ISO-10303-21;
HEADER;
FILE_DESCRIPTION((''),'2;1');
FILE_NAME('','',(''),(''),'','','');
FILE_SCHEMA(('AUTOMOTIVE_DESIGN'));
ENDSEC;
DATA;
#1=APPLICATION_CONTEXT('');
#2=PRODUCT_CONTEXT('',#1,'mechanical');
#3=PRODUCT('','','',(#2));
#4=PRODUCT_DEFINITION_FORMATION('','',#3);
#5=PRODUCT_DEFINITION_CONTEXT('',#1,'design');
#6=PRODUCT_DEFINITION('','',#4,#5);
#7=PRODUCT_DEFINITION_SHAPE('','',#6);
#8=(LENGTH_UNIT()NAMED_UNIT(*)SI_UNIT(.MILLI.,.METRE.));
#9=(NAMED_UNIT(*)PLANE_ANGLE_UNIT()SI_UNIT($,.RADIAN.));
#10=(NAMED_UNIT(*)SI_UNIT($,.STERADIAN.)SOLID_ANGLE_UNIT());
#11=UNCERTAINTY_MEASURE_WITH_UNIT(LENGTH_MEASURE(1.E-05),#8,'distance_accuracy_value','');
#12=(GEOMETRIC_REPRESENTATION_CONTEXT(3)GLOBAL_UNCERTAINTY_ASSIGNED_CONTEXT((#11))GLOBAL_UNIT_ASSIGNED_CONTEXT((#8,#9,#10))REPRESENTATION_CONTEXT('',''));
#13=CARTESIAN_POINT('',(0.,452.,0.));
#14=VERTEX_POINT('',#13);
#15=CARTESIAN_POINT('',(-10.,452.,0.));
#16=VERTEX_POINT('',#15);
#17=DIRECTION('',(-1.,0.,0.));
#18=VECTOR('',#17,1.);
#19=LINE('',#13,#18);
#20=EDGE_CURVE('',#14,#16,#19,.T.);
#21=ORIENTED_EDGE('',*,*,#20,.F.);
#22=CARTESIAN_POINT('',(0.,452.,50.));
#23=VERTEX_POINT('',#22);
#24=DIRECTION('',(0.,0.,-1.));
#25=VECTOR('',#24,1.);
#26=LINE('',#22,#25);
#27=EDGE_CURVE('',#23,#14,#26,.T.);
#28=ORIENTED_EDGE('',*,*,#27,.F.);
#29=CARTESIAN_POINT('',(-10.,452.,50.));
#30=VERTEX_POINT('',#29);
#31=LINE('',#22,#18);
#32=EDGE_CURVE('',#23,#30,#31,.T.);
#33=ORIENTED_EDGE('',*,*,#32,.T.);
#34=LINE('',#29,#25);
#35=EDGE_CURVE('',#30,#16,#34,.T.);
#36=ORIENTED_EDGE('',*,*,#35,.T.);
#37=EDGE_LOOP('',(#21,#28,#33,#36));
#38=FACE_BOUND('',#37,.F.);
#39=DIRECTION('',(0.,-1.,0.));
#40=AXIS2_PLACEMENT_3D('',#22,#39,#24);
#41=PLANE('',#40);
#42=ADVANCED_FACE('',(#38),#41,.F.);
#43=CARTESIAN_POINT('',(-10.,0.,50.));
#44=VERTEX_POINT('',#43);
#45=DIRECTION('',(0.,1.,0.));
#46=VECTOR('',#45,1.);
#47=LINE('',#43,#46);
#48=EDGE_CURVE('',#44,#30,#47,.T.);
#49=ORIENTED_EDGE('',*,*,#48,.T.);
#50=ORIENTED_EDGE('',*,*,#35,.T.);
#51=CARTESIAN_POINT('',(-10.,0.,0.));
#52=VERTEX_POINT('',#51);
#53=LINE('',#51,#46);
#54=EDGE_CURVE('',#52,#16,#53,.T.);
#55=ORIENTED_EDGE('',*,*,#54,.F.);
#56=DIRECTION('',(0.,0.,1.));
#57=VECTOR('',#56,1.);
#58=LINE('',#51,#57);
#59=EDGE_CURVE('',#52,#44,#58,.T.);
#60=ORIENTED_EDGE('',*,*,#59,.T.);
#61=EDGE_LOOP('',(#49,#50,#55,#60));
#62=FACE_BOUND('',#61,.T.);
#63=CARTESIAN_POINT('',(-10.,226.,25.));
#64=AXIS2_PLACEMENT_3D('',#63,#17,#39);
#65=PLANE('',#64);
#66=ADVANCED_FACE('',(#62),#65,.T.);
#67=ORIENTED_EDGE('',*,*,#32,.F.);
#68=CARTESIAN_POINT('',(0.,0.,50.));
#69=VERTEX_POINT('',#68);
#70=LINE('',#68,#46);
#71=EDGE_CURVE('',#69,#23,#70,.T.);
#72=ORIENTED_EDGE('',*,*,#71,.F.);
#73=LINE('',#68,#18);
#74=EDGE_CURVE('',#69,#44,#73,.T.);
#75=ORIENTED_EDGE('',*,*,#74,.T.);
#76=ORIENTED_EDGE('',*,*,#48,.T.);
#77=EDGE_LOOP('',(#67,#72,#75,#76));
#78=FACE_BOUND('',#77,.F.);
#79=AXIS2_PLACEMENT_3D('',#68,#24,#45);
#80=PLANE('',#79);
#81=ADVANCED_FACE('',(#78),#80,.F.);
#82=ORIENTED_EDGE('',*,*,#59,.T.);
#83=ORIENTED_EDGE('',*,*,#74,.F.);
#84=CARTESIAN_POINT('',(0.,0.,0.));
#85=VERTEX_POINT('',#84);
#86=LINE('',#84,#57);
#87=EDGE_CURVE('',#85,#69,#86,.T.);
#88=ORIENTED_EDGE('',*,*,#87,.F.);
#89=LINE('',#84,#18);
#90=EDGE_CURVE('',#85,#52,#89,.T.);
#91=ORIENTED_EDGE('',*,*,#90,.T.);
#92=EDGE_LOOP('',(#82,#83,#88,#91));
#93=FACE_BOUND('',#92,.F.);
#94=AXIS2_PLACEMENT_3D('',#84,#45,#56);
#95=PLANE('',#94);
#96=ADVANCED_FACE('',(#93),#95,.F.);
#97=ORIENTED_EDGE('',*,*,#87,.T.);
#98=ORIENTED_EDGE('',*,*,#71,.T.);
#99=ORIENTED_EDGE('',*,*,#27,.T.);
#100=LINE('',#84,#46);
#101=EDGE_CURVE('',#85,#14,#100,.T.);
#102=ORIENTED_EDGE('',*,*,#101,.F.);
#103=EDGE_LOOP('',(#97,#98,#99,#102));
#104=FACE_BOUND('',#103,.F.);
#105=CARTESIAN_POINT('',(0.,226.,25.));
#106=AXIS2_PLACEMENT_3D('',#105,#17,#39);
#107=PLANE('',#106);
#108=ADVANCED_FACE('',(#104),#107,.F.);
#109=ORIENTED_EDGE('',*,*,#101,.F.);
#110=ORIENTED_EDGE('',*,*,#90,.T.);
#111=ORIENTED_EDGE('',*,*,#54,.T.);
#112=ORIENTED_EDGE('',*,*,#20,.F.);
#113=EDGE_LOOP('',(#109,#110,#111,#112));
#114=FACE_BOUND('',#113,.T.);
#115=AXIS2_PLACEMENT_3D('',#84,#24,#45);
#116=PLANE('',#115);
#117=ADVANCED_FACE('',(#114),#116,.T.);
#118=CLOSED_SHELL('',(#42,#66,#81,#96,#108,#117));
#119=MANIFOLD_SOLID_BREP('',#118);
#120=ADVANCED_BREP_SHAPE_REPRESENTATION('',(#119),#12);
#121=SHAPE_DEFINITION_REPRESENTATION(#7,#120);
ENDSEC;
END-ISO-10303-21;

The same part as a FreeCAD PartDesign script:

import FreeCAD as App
import Part
import Sketcher
from FreeCAD import Vector

doc = App.newDocument("Part")
params = doc.addObject("Spreadsheet::Sheet", "Params")
for row, (alias, value) in enumerate([
    ("sketch1_width", "452 mm"),
    ("sketch1_height", "50 mm"),
    ("pad1_length", "10 mm"),
], start=1):
    params.set(f"A{row}", alias)
    params.set(f"B{row}", "=" + value)
    params.setAlias(f"B{row}", alias)

body = doc.addObject("PartDesign::Body", "Body")

# Sketch on YZ plane
sketch1 = doc.addObject("Sketcher::SketchObject", "Sketch")
body.addObject(sketch1)
sketch1.AttachmentSupport = (doc.YZ_Plane, [""])
sketch1.MapMode = "FlatFace"
sketch1.addGeometry([
    Part.LineSegment(Vector(0, 50, 0), Vector(0, 0, 0)),
    Part.LineSegment(Vector(0, 0, 0), Vector(452, 0, 0)),
    Part.LineSegment(Vector(452, 0, 0), Vector(452, 50, 0)),
    Part.LineSegment(Vector(452, 50, 0), Vector(0, 50, 0)),
], False)
sketch1.addConstraint([
    Sketcher.Constraint("Coincident", 0, 2, 1, 1),
    Sketcher.Constraint("Coincident", 1, 2, 2, 1),
    Sketcher.Constraint("Coincident", 2, 2, 3, 1),
    Sketcher.Constraint("Coincident", 3, 2, 0, 1),
    Sketcher.Constraint("Vertical", 0),
    Sketcher.Constraint("Horizontal", 1),
    Sketcher.Constraint("Vertical", 2),
    Sketcher.Constraint("Horizontal", 3),
    Sketcher.Constraint("Coincident", 0, 2, -1, 1),
    Sketcher.Constraint("DistanceX", 1, 1, 1, 2, 452.0),
    Sketcher.Constraint("DistanceY", 0, 2, 0, 1, 50.0),
])
sketch1.setExpression("Constraints[9]", "Params.sketch1_width")
sketch1.setExpression("Constraints[10]", "Params.sketch1_height")
pad1 = doc.addObject("PartDesign::Pad", "Pad")
body.addObject(pad1)
pad1.Profile = sketch1
pad1.setExpression("Length", "Params.pad1_length")
pad1.Reversed = True

doc.recompute()
